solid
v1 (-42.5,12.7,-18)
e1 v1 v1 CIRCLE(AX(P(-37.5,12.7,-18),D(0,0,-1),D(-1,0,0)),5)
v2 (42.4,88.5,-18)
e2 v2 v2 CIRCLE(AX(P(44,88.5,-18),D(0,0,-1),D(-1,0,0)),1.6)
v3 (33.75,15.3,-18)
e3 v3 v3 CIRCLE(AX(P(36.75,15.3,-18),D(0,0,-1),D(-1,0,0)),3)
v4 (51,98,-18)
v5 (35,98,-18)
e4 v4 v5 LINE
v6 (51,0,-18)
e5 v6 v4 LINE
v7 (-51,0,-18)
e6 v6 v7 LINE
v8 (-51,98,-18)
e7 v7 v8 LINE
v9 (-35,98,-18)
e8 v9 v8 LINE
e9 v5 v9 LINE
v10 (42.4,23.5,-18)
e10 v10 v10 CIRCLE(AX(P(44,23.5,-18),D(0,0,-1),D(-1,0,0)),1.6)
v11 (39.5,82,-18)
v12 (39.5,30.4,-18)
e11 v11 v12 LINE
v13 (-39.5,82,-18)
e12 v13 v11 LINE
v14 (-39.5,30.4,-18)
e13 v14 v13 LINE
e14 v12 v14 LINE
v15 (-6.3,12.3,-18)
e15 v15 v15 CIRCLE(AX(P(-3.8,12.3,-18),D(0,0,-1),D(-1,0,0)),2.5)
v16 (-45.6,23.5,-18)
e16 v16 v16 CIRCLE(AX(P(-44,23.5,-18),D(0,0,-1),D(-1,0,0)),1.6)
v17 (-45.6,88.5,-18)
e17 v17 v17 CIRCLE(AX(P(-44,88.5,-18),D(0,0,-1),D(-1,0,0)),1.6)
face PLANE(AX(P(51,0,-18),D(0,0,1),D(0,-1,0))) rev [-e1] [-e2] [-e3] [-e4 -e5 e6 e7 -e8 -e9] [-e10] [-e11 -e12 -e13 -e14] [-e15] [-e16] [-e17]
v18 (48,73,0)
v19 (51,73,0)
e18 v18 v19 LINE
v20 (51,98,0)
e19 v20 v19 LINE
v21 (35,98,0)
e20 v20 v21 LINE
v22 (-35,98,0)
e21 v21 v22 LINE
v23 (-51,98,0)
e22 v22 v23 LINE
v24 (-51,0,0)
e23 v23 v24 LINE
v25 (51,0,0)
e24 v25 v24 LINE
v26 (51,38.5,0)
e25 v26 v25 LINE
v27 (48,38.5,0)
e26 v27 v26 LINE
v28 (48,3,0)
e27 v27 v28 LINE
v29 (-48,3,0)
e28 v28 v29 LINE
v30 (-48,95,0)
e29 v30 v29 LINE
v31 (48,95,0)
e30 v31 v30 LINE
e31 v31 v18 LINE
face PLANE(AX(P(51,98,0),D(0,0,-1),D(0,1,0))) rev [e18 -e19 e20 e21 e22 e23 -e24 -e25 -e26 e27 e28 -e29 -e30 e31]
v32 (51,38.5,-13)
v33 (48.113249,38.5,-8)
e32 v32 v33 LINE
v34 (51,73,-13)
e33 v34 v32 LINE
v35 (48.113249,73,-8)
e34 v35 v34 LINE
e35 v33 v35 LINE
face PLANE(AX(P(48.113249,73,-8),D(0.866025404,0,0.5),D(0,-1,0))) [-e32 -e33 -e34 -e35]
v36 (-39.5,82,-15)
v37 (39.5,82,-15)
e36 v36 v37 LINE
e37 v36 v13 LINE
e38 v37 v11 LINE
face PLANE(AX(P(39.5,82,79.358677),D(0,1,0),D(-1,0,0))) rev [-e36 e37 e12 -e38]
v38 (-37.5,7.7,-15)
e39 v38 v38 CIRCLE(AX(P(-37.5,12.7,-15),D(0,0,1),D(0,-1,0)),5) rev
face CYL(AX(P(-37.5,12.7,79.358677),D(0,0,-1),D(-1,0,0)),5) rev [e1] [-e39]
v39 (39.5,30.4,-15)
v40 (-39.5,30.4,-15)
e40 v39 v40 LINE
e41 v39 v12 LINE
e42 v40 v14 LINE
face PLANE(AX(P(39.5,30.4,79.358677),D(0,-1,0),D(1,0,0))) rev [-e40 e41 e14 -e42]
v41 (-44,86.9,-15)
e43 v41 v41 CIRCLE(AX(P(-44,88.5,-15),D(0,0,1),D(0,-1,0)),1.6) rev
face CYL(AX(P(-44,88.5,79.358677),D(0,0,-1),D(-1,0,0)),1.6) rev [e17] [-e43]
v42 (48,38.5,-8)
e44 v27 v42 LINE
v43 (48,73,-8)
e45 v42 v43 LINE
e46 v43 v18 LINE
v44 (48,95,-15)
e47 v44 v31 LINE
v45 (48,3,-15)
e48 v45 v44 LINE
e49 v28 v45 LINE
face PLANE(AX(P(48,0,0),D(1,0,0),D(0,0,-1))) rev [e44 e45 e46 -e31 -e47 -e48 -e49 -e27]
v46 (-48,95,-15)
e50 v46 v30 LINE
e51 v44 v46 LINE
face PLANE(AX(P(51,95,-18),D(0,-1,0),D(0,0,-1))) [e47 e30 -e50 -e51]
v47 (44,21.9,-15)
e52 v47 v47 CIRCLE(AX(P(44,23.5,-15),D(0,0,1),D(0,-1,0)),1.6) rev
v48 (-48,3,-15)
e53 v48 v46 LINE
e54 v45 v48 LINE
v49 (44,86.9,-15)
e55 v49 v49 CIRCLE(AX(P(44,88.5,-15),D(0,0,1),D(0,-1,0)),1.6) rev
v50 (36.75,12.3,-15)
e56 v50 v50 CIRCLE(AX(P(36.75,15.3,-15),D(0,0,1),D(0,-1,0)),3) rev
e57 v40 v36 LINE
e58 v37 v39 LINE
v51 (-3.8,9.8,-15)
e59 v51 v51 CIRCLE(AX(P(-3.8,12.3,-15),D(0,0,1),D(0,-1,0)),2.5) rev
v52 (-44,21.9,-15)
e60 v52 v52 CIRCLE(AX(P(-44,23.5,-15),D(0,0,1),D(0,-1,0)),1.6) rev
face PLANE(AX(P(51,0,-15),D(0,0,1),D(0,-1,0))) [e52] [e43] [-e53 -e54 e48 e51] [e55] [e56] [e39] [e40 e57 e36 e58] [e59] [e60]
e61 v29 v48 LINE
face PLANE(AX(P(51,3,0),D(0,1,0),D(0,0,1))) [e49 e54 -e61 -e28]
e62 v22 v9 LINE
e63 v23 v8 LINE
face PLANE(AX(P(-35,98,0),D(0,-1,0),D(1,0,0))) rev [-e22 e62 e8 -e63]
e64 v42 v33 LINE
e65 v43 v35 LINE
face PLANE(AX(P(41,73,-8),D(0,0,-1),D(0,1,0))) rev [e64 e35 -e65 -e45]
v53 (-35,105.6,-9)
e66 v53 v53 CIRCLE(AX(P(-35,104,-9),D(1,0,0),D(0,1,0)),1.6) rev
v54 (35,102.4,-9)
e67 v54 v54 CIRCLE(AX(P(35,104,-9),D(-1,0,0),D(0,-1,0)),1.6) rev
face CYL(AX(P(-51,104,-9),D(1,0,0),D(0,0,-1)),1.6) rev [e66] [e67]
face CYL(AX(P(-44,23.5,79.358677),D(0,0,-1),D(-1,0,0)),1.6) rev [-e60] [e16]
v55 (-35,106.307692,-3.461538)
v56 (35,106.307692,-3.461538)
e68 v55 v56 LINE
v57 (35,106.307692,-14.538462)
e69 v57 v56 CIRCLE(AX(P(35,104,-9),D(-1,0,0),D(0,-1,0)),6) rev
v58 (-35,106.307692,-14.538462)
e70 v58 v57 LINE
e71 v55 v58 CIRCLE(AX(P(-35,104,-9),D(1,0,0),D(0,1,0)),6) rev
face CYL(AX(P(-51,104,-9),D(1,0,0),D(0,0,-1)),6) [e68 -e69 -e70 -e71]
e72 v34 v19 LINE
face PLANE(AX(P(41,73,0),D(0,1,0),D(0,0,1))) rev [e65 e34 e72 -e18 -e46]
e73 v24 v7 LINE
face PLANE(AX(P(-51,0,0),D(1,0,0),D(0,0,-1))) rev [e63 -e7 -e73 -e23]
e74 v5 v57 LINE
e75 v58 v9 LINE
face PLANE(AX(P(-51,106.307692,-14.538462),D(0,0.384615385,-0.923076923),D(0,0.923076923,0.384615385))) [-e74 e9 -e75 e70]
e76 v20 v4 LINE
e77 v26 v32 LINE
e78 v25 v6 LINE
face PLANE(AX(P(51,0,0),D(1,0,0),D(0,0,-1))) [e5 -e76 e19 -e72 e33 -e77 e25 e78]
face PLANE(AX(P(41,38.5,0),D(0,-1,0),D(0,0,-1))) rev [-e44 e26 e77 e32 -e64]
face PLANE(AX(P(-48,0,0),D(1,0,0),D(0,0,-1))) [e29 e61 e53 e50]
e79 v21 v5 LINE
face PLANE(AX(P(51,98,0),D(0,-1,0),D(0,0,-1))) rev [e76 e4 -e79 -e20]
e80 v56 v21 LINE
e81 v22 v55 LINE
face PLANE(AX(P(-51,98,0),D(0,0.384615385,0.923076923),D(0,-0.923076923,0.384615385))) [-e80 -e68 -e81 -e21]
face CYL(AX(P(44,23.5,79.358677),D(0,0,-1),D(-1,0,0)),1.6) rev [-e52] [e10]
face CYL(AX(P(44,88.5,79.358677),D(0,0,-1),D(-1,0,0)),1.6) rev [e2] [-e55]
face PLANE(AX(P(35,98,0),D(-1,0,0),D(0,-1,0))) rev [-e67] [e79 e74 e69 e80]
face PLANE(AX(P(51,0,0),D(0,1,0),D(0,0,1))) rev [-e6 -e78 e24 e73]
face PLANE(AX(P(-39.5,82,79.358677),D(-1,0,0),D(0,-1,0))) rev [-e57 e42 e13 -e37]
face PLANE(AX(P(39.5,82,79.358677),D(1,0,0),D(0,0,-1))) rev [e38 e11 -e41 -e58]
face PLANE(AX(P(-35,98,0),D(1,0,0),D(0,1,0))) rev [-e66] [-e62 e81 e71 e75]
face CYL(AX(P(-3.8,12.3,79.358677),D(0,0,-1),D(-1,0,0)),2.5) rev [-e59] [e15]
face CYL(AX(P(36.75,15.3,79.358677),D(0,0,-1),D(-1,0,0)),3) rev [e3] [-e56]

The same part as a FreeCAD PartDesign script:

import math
import FreeCAD as App
import Part
import Sketcher
from FreeCAD import Vector
Q = App.Units.Quantity


def edges_at(feature, points):
    """Names of the edges that pass closest to the given points."""
    edges = feature.Shape.Edges
    near = lambda p: min(range(len(edges)), key=lambda i: edges[i].distToShape(Part.Vertex(*p))[0])
    return sorted({f"Edge{near(p) + 1}" for p in points})


def faces_at(feature, points):
    """Names of the faces that lie closest to the given points."""
    faces = feature.Shape.Faces
    near = lambda p: min(range(len(faces)), key=lambda i: faces[i].distToShape(Part.Vertex(*p))[0])
    return sorted({f"Face{near(p) + 1}" for p in points})


def add_polygon(sketch, points):
    """Adds a closed chain of lines whose ends are joined by coincident constraints."""
    first, n = sketch.GeometryCount, len(points)
    for a, b in zip(points, points[1:] + points[:1]):
        sketch.addGeometry(Part.LineSegment(App.Vector(*a, 0), App.Vector(*b, 0)), False)
    for i in range(n):
        sketch.addConstraint(Sketcher.Constraint("Coincident", first + i, 2, first + (i + 1) % n, 1))

doc = App.newDocument("Part")
body = doc.addObject("PartDesign::Body", "Body")

# Sketch on YZ plane
sketch1 = body.newObject("Sketcher::SketchObject", "Sketch")
sketch1.AttachmentSupport = (doc.getObject("YZ_Plane"), [""])
sketch1.MapMode = "FlatFace"
add_polygon(sketch1, [(98, 0), (0, 0), (0, -18), (98, -18)])  # lines 0-3
sketch1.addConstraint(Sketcher.Constraint("Horizontal", 0))
sketch1.addConstraint(Sketcher.Constraint("Vertical", 1))
sketch1.addConstraint(Sketcher.Constraint("Horizontal", 2))
sketch1.addConstraint(Sketcher.Constraint("Vertical", 3))
sketch1.addConstraint(Sketcher.Constraint("Coincident", 0, 2, -1, 1))
sketch1.addConstraint(Sketcher.Constraint("DistanceX", 0, 2, 0, 1, Q("98 mm")))
sketch1.addConstraint(Sketcher.Constraint("DistanceY", 1, 2, 1, 1, Q("18 mm")))
pad1 = body.newObject("PartDesign::Pad", "Pad")
pad1.Profile = sketch1
pad1.Length = 102
pad1.Midplane = True
doc.recompute()

thickness = body.newObject("PartDesign::Thickness", "Thickness")
thickness.Base = (pad1, faces_at(pad1, [(0, 49, 0)]))
thickness.Value = 3
thickness.Reversed = True
thickness.Join = "Intersection"

# Sketch on XY plane
sketch2 = body.newObject("Sketcher::SketchObject", "Sketch001")
sketch2.AttachmentSupport = (doc.getObject("XY_Plane"), [""])
sketch2.MapMode = "FlatFace"
sketch2.AttachmentOffset = App.Placement(Vector(0, 0, -18), App.Rotation())
sketch2.addGeometry(Part.Circle(Vector(-44, 23.5, 0), Vector(0, 0, 1), 1.6), False)  # 0
sketch2.addGeometry(Part.Circle(Vector(-44, 88.5, 0), Vector(0, 0, 1), 1.6), False)  # 1
sketch2.addGeometry(Part.Circle(Vector(44, 88.5, 0), Vector(0, 0, 1), 1.6), False)  # 2
sketch2.addGeometry(Part.Circle(Vector(44, 23.5, 0), Vector(0, 0, 1), 1.6), False)  # 3
sketch2.addGeometry(Part.Circle(Vector(-37.5, 12.7, 0), Vector(0, 0, 1), 5), False)  # 4
sketch2.addGeometry(Part.Circle(Vector(36.8, 15.3, 0), Vector(0, 0, 1), 3), False)  # 5
sketch2.addGeometry(Part.Circle(Vector(-3.8, 12.3, 0), Vector(0, 0, 1), 2.5), False)  # 6
add_polygon(sketch2, [(-39.5, 30.4), (-39.5, 82), (39.5, 82), (39.5, 30.4)])  # lines 7-10
sketch2.addConstraint(Sketcher.Constraint("Vertical", 7))
sketch2.addConstraint(Sketcher.Constraint("Horizontal", 8))
sketch2.addConstraint(Sketcher.Constraint("Vertical", 9))
sketch2.addConstraint(Sketcher.Constraint("Horizontal", 10))
sketch2.addConstraint(Sketcher.Constraint("Equal", 0, 1))
sketch2.addConstraint(Sketcher.Constraint("Equal", 1, 2))
sketch2.addConstraint(Sketcher.Constraint("Equal", 2, 3))
sketch2.addConstraint(Sketcher.Constraint("Symmetric", 1, 3, 2, 3, -2))
sketch2.addConstraint(Sketcher.Constraint("Symmetric", 0, 3, 3, 3, -2))
sketch2.addConstraint(Sketcher.Constraint("Vertical", 0, 3, 1, 3))
sketch2.addConstraint(Sketcher.Constraint("Diameter", 4, Q("10 mm")))
sketch2.addConstraint(Sketcher.Constraint("Diameter", 5, Q("6 mm")))
sketch2.addConstraint(Sketcher.Constraint("Diameter", 6, Q("5 mm")))
sketch2.addConstraint(Sketcher.Constraint("Diameter", 0, Q("3.2 mm")))
sketch2.addConstraint(Sketcher.Constraint("DistanceX", 8, 1, 8, 2, Q("79 mm")))
sketch2.addConstraint(Sketcher.Constraint("DistanceY", 7, 1, 7, 2, Q("51.6 mm")))
sketch2.addConstraint(Sketcher.Constraint("DistanceX", 0, 3, -1, 1, Q("44 mm")))
sketch2.addConstraint(Sketcher.Constraint("DistanceY", -1, 1, 7, 2, Q("82 mm")))
sketch2.addConstraint(Sketcher.Constraint("DistanceY", 0, 3, 1, 3, Q("65 mm")))
sketch2.addConstraint(Sketcher.Constraint("DistanceY", 6, 3, 5, 3, Q("3 mm")))
sketch2.addConstraint(Sketcher.Constraint("DistanceX", 7, 2, 4, 3, Q("2 mm")))
sketch2.addConstraint(Sketcher.Constraint("DistanceY", -1, 1, 0, 3, Q("23.5 mm")))
sketch2.addConstraint(Sketcher.Constraint("DistanceX", 4, 3, -1, 1, Q("37.5 mm")))
sketch2.addConstraint(Sketcher.Constraint("DistanceY", -1, 1, 4, 3, Q("12.7 mm")))
sketch2.addConstraint(Sketcher.Constraint("DistanceY", -1, 1, 5, 3, Q("15.3 mm")))
sketch2.addConstraint(Sketcher.Constraint("DistanceX", 6, 3, -1, 1, Q("3.8 mm")))
sketch2.addConstraint(Sketcher.Constraint("DistanceX", -1, 1, 5, 3, Q("36.75 mm")))
pocket1 = body.newObject("PartDesign::Pocket", "Pocket")
pocket1.Profile = sketch2
pocket1.Length = 3
pocket1.Reversed = True

# Sketch on YZ plane
sketch3 = body.newObject("Sketcher::SketchObject", "Sketch002")
sketch3.AttachmentSupport = (doc.getObject("YZ_Plane"), [""])
sketch3.MapMode = "FlatFace"
sketch3.AttachmentOffset = App.Placement(Vector(0, 0, 51), App.Rotation())
sketch3.addGeometry(Part.LineSegment(Vector(98, -18, 0), Vector(106.3, -14.5, 0)), False)
sketch3.addGeometry(Part.ArcOfCircle(Part.Circle(Vector(104, -9, 0), Vector(0, 0, 1), 6), math.radians(-67), math.radians(67)), False)
sketch3.addGeometry(Part.LineSegment(Vector(106.3, -3.5, 0), Vector(98, 0, 0)), False)
sketch3.addGeometry(Part.LineSegment(Vector(98, 0, 0), Vector(98, -18, 0)), False)
sketch3.addGeometry(Part.Circle(Vector(104, -9, 0), Vector(0, 0, 1), 1.6), False)
sketch3.addConstraint(Sketcher.Constraint("Tangent", 0, 2, 1, 1))
sketch3.addConstraint(Sketcher.Constraint("Tangent", 1, 2, 2, 1))
sketch3.addConstraint(Sketcher.Constraint("Coincident", 2, 2, 3, 1))
sketch3.addConstraint(Sketcher.Constraint("Coincident", 3, 2, 0, 1))
sketch3.addConstraint(Sketcher.Constraint("Vertical", 3))
sketch3.addConstraint(Sketcher.Constraint("Coincident", 4, 3, 1, 3))
sketch3.addConstraint(Sketcher.Constraint("PointOnObject", 2, 2, -1))
sketch3.addConstraint(Sketcher.Constraint("Vertical", 0, 2, 1, 2))
sketch3.addConstraint(Sketcher.Constraint("Radius", 1, Q("6 mm")))
sketch3.addConstraint(Sketcher.Constraint("Diameter", 4, Q("3.2 mm")))
sketch3.addConstraint(Sketcher.Constraint("DistanceY", 3, 2, 3, 1, Q("18 mm")))
sketch3.addConstraint(Sketcher.Constraint("Distance", 0, Q("9 mm")))
sketch3.addConstraint(Sketcher.Constraint("DistanceX", -1, 1, 1, 3, Q("104 mm")))
pad2 = body.newObject("PartDesign::Pad", "Pad001")
pad2.Profile = sketch3
pad2.Length = 102
pad2.Reversed = True

# Sketch on XY plane
sketch4 = body.newObject("Sketcher::SketchObject", "Sketch003")
sketch4.AttachmentSupport = (doc.getObject("XY_Plane"), [""])
sketch4.MapMode = "FlatFace"
sketch4.AttachmentOffset = App.Placement(Vector(0, 0, -18), App.Rotation())
add_polygon(sketch4, [(51, 110), (51, 98), (35, 98), (35, 110)])  # lines 0-3
add_polygon(sketch4, [(-35, 110), (-35, 98), (-51, 98), (-51, 110)])  # lines 4-7
sketch4.addConstraint(Sketcher.Constraint("Vertical", 0))
sketch4.addConstraint(Sketcher.Constraint("Horizontal", 1))
sketch4.addConstraint(Sketcher.Constraint("Vertical", 2))
sketch4.addConstraint(Sketcher.Constraint("Horizontal", 3))
sketch4.addConstraint(Sketcher.Constraint("Vertical", 4))
sketch4.addConstraint(Sketcher.Constraint("Horizontal", 5))
sketch4.addConstraint(Sketcher.Constraint("Vertical", 6))
sketch4.addConstraint(Sketcher.Constraint("Horizontal", 7))
sketch4.addConstraint(Sketcher.Constraint("Symmetric", 1, 2, 4, 2, -2))
sketch4.addConstraint(Sketcher.Constraint("Symmetric", 3, 2, 6, 2, -2))
sketch4.addConstraint(Sketcher.Constraint("DistanceX", 1, 2, 1, 1, Q("16 mm")))
sketch4.addConstraint(Sketcher.Constraint("DistanceY", 0, 2, 0, 1, Q("12 mm")))
sketch4.addConstraint(Sketcher.Constraint("DistanceX", -1, 1, 0, 2, Q("51 mm")))
sketch4.addConstraint(Sketcher.Constraint("DistanceY", -1, 1, 0, 2, Q("98 mm")))
pocket2 = body.newObject("PartDesign::Pocket", "Pocket001")
pocket2.Profile = sketch4
pocket2.Type = "ThroughAll"
pocket2.Reversed = True

# Sketch on YZ plane
sketch5 = body.newObject("Sketcher::SketchObject", "Sketch004")
sketch5.AttachmentSupport = (doc.getObject("YZ_Plane"), [""])
sketch5.MapMode = "FlatFace"
sketch5.AttachmentOffset = App.Placement(Vector(0, 0, 51), App.Rotation())
add_polygon(sketch5, [(73, 0), (38, 0), (38, -8), (73, -8)])  # lines 0-3
sketch5.addConstraint(Sketcher.Constraint("Horizontal", 0))
sketch5.addConstraint(Sketcher.Constraint("Vertical", 1))
sketch5.addConstraint(Sketcher.Constraint("Horizontal", 2))
sketch5.addConstraint(Sketcher.Constraint("Vertical", 3))
sketch5.addConstraint(Sketcher.Constraint("PointOnObject", 0, 2, -1))
sketch5.addConstraint(Sketcher.Constraint("DistanceY", 1, 2, 1, 1, Q("8 mm")))
sketch5.addConstraint(Sketcher.Constraint("DistanceX", 0, 2, 0, 1, Q("34.5 mm")))
sketch5.addConstraint(Sketcher.Constraint("DistanceX", -1, 1, 2, 2, Q("73 mm")))
pocket3 = body.newObject("PartDesign::Pocket", "Pocket002")
pocket3.Profile = sketch5
pocket3.Length = 10
doc.recompute()

chamfer = body.newObject("PartDesign::Chamfer", "Chamfer")
chamfer.Base = (pocket3, edges_at(pocket3, [(51, 55.75, -8)]))
chamfer.ChamferType = "Two distances"
chamfer.Size = 5
chamfer.Size2 = 2.886751

doc.recompute()
